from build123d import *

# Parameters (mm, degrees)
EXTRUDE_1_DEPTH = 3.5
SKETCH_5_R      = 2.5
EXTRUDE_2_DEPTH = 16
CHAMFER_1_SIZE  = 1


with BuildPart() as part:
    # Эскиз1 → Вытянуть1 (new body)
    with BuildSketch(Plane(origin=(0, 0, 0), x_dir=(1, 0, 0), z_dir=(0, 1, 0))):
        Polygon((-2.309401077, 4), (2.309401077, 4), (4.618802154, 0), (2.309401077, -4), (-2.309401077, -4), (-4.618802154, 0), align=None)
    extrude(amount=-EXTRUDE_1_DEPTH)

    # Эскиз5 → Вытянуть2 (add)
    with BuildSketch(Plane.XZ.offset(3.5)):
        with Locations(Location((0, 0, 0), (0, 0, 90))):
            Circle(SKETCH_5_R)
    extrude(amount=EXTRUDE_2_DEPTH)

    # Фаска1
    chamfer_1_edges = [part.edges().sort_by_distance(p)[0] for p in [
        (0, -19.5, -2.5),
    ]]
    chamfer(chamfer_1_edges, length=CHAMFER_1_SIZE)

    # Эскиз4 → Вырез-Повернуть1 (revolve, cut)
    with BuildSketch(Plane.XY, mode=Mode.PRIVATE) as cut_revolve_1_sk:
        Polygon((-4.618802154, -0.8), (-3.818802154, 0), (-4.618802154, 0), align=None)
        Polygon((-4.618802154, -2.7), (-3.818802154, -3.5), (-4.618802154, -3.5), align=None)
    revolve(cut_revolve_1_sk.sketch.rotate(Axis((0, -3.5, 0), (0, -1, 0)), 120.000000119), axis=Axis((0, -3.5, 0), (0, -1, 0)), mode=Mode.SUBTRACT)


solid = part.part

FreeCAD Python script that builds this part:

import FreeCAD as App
import Part
import Sketcher
Q = App.Units.Quantity


def edges_at(feature, points):
    """Names of the edges that pass closest to the given points."""
    edges = feature.Shape.Edges
    near = lambda p: min(range(len(edges)), key=lambda i: edges[i].distToShape(Part.Vertex(*p))[0])
    return sorted({f"Edge{near(p) + 1}" for p in points})


def add_polygon(sketch, points):
    """Adds a closed chain of lines whose ends are joined by coincident constraints."""
    first, n = sketch.GeometryCount, len(points)
    for a, b in zip(points, points[1:] + points[:1]):
        sketch.addGeometry(Part.LineSegment(App.Vector(*a, 0), App.Vector(*b, 0)), False)
    for i in range(n):
        sketch.addConstraint(Sketcher.Constraint("Coincident", first + i, 2, first + (i + 1) % n, 1))

doc = App.newDocument("Part")
body = doc.addObject("PartDesign::Body", "Body")

# Sketch on XZ plane
sketch1 = doc.addObject("Sketcher::SketchObject", "Sketch")
body.addObject(sketch1)
sketch1.AttachmentSupport = (doc.XZ_Plane, [""])
sketch1.MapMode = "FlatFace"
add_polygon(sketch1, [(2.3, -4), (-2.3, -4), (-4.6, 0), (-2.3, 4), (2.3, 4), (4.6, 0)])  # lines 0-5
sketch1.addConstraint(Sketcher.Constraint("Horizontal", 0))
sketch1.addConstraint(Sketcher.Constraint("Horizontal", 3))
sketch1.addConstraint(Sketcher.Constraint("Symmetric", 0, 2, 3, 2, -1, 1))
sketch1.addConstraint(Sketcher.Constraint("Symmetric", 1, 2, 4, 2, -1, 1))
sketch1.addConstraint(Sketcher.Constraint("PointOnObject", 1, 2, -1))
sketch1.addConstraint(Sketcher.Constraint("Parallel", 2, 5))
sketch1.addConstraint(Sketcher.Constraint("Vertical", 0, 2, 2, 2))
sketch1.addConstraint(Sketcher.Constraint("Angle", 1, Q("120 deg")))
sketch1.addConstraint(Sketcher.Constraint("DistanceY", 0, 2, -1, 1, Q("4 mm")))
sketch1.addConstraint(Sketcher.Constraint("DistanceX", 0, 2, -1, 1, Q("2.309401 mm")))
pad1 = doc.addObject("PartDesign::Pad", "Pad")
body.addObject(pad1)
pad1.Profile = sketch1
pad1.Length = 3.5

# Sketch on XZ plane
sketch2 = doc.addObject("Sketcher::SketchObject", "Sketch001")
body.addObject(sketch2)
sketch2.AttachmentSupport = (doc.XZ_Plane, [""])
sketch2.MapMode = "FlatFace"
sketch2.AttachmentOffset = App.Placement(App.Vector(0, 0, 3.5), App.Rotation())
sketch2.addGeometry(Part.Circle(App.Vector(0, 0, 0), App.Vector(0, 0, 1), 2.5), False)
sketch2.addConstraint(Sketcher.Constraint("Coincident", 0, 3, -1, 1))
sketch2.addConstraint(Sketcher.Constraint("Diameter", 0, Q("5 mm")))
pad2 = doc.addObject("PartDesign::Pad", "Pad001")
body.addObject(pad2)
pad2.Profile = sketch2
pad2.Length = 16
doc.recompute()

chamfer = doc.addObject("PartDesign::Chamfer", "Chamfer")
body.addObject(chamfer)
chamfer.Base = (pad2, edges_at(pad2, [(0, -19.5, -2.5)]))
chamfer.Size = 1

# Sketch on XY plane
sketch3 = doc.addObject("Sketcher::SketchObject", "Sketch002")
body.addObject(sketch3)
sketch3.AttachmentSupport = (doc.XY_Plane, [""])
sketch3.MapMode = "FlatFace"
add_polygon(sketch3, [(-4.6, -0.8), (-3.8, 0), (-4.6, 0)])  # lines 0-2
add_polygon(sketch3, [(-3.8, -3.5), (-4.6, -2.7), (-4.6, -3.5)])  # lines 3-5
sketch3.addConstraint(Sketcher.Constraint("Horizontal", 1))
sketch3.addConstraint(Sketcher.Constraint("Vertical", 2))
sketch3.addConstraint(Sketcher.Constraint("Vertical", 4))
sketch3.addConstraint(Sketcher.Constraint("Horizontal", 5))
sketch3.addConstraint(Sketcher.Constraint("PointOnObject", 0, 2, -1))
sketch3.addConstraint(Sketcher.Constraint("Perpendicular", 0, 3))
sketch3.addConstraint(Sketcher.Constraint("Vertical", 2, 2, 3, 2))
sketch3.addConstraint(Sketcher.Constraint("Vertical", 0, 2, 5, 2))
sketch3.addConstraint(Sketcher.Constraint("Equal", 5, 2))
sketch3.addConstraint(Sketcher.Constraint("DistanceX", 1, 2, 1, 1, Q("0.8 mm")))
sketch3.addConstraint(Sketcher.Constraint("DistanceY", 3, 2, -1, 1, Q("2.7 mm")))
sketch3.addConstraint(Sketcher.Constraint("DistanceX", 0, 2, -1, 1, Q("3.818802 mm")))
groove = doc.addObject("PartDesign::Groove", "Groove")
body.addObject(groove)
groove.Profile = sketch3
groove.ReferenceAxis = (sketch3, ["V_Axis"])
groove.Angle = 360

doc.recompute()
